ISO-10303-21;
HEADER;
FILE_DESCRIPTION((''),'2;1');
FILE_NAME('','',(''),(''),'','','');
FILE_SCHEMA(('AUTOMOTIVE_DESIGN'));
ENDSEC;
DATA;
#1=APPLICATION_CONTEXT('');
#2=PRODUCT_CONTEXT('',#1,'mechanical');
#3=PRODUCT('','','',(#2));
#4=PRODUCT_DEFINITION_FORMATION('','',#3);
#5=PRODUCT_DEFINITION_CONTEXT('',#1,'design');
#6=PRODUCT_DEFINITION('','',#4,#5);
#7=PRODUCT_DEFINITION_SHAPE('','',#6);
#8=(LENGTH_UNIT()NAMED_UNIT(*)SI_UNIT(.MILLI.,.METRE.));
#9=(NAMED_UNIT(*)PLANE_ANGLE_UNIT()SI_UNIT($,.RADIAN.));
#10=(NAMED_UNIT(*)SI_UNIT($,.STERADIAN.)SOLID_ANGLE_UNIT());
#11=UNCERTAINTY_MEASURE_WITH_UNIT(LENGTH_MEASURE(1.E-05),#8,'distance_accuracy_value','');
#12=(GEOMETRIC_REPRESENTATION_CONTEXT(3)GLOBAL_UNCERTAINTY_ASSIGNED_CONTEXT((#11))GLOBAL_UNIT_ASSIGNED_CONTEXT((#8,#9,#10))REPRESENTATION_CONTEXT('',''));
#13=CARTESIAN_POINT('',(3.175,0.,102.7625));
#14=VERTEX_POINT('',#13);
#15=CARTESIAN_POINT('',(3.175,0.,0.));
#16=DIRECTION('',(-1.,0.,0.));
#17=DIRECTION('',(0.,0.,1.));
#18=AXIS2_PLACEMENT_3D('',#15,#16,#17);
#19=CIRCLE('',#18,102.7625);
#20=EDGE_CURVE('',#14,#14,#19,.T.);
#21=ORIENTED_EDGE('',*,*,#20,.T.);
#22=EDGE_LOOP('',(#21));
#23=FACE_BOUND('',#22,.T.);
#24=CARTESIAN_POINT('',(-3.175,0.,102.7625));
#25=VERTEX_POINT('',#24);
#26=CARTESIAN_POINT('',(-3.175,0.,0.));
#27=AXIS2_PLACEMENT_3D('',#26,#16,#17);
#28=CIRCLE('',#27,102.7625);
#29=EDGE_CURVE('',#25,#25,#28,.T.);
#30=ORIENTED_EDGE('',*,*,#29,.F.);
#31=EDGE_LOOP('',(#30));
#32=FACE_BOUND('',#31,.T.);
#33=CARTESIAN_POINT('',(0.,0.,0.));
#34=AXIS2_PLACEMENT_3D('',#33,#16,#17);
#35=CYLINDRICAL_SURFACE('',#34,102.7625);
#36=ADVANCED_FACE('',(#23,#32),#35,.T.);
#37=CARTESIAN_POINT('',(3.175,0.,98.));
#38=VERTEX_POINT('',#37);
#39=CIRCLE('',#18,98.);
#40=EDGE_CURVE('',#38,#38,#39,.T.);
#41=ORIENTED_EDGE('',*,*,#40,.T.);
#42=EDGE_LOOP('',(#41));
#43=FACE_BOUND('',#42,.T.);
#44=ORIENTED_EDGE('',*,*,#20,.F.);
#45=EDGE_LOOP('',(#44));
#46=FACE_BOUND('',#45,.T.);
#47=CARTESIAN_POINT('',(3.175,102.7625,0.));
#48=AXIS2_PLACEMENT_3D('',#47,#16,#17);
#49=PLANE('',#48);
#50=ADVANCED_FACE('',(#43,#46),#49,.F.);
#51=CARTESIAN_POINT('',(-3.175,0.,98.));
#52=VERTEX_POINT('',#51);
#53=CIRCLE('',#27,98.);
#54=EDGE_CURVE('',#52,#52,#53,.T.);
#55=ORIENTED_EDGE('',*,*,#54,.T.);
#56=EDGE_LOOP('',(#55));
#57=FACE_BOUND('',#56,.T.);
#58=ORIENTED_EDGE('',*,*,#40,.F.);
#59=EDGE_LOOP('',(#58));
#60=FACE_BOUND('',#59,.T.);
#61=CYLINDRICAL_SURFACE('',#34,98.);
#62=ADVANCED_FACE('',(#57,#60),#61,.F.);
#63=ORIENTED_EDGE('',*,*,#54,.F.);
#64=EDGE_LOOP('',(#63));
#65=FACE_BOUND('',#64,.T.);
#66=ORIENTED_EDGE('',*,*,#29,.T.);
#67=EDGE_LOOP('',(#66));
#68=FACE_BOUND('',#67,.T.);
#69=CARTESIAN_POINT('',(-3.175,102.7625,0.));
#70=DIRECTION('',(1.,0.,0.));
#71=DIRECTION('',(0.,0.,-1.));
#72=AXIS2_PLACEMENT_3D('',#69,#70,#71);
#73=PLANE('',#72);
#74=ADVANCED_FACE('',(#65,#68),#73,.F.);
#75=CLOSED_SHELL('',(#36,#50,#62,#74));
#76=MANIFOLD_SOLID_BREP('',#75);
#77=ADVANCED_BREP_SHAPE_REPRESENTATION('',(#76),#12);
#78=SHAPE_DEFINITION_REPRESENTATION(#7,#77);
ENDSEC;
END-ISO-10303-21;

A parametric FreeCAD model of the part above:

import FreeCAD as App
import Part
import Sketcher
Q = App.Units.Quantity

doc = App.newDocument("Part")
body = doc.addObject("PartDesign::Body", "Body")

sketch1 = doc.addObject("Sketcher::SketchObject", "Sketch")
body.addObject(sketch1)
sketch1.AttachmentSupport = (doc.XY_Plane, [""])
sketch1.MapMode = "FlatFace"
sketch1.addGeometry([
    Part.LineSegment(App.Vector(-3.2, 102.8, 0), App.Vector(-3.2, 98, 0)),
    Part.LineSegment(App.Vector(-3.2, 98, 0), App.Vector(3.2, 98, 0)),
    Part.LineSegment(App.Vector(3.2, 98, 0), App.Vector(3.2, 102.8, 0)),
    Part.LineSegment(App.Vector(3.2, 102.8, 0), App.Vector(-3.2, 102.8, 0)),
], False)
sketch1.addConstraint([
    Sketcher.Constraint("Coincident", 0, 2, 1, 1),
    Sketcher.Constraint("Coincident", 1, 2, 2, 1),
    Sketcher.Constraint("Coincident", 2, 2, 3, 1),
    Sketcher.Constraint("Coincident", 3, 2, 0, 1),
    Sketcher.Constraint("Vertical", 0),
    Sketcher.Constraint("Horizontal", 1),
    Sketcher.Constraint("Vertical", 2),
    Sketcher.Constraint("Horizontal", 3),
    Sketcher.Constraint("DistanceX", 1, 1, 1, 2, Q("0.25 in")),
    Sketcher.Constraint("DistanceY", 0, 2, 0, 1, Q("0.1875 in")),
    Sketcher.Constraint("DistanceX", 0, 2, -1, 1, Q("0.125 in")),
    Sketcher.Constraint("DistanceY", -1, 1, 0, 2, Q("98 mm")),
])
revolution = doc.addObject("PartDesign::Revolution", "Revolution")
body.addObject(revolution)
revolution.Profile = sketch1
revolution.ReferenceAxis = (sketch1, ["H_Axis"])
revolution.Angle = 360

doc.recompute()
